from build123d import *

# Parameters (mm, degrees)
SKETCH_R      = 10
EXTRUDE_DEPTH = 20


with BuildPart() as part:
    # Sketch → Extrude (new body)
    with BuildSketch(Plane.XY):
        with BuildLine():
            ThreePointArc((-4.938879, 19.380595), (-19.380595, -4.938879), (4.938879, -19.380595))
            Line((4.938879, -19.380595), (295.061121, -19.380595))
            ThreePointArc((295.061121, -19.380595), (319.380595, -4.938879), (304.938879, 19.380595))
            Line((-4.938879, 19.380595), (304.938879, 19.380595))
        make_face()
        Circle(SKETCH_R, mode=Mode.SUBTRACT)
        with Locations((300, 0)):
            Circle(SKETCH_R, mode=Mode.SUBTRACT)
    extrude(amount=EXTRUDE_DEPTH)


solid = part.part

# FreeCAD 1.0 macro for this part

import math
import FreeCAD as App
import Part
import Sketcher

V = App.Vector

doc = App.newDocument("Part")
body = doc.addObject("PartDesign::Body", "Body")

sketch1 = body.newObject("Sketcher::SketchObject", "Sketch")
sketch1.AttachmentSupport = (doc.getObject("XY_Plane"), [""])
sketch1.MapMode = "FlatFace"
sketch1.addGeometry(Part.ArcOfCircle(Part.Circle(V(0, 0, 0), V(0, 0, 1), 20), math.radians(104), math.radians(284)), False)
sketch1.addGeometry(Part.LineSegment(V(5, -19, 0), V(295, -19, 0)), False)
sketch1.addGeometry(Part.ArcOfCircle(Part.Circle(V(300, 0, 0), V(0, 0, 1), 20), math.radians(-104), math.radians(76)), False)
sketch1.addGeometry(Part.LineSegment(V(305, 19, 0), V(-5, 19, 0)), False)
sketch1.addGeometry(Part.Circle(V(0, 0, 0), V(0, 0, 1), 10), False)
sketch1.addGeometry(Part.Circle(V(300, 0, 0), V(0, 0, 1), 10), False)
sketch1.addConstraint(Sketcher.Constraint("Coincident", 0, 2, 1, 1))
sketch1.addConstraint(Sketcher.Constraint("Coincident", 1, 2, 2, 1))
sketch1.addConstraint(Sketcher.Constraint("Coincident", 2, 2, 3, 1))
sketch1.addConstraint(Sketcher.Constraint("Coincident", 3, 2, 0, 1))
sketch1.addConstraint(Sketcher.Constraint("Horizontal", 1))
sketch1.addConstraint(Sketcher.Constraint("Horizontal", 3))
sketch1.addConstraint(Sketcher.Constraint("Coincident", 0, 3, -1, 1))
sketch1.addConstraint(Sketcher.Constraint("Coincident", 4, 3, -1, 1))
sketch1.addConstraint(Sketcher.Constraint("Coincident", 5, 3, 2, 3))
sketch1.addConstraint(Sketcher.Constraint("Equal", 0, 2))
sketch1.addConstraint(Sketcher.Constraint("Equal", 4, 5))
sketch1.addConstraint(Sketcher.Constraint("PointOnObject", 2, 3, -1))
sketch1.addConstraint(Sketcher.Constraint("Diameter", 4, 20.0))
sketch1.addConstraint(Sketcher.Constraint("Radius", 0, 20.0))
sketch1.addConstraint(Sketcher.Constraint("DistanceX", -1, 1, 2, 3, 300.0))
sketch1.addConstraint(Sketcher.Constraint("DistanceX", 0, 2, 2, 2, 300.0))
sketch1.addConstraint(Sketcher.Constraint("DistanceX", 1, 1, 1, 2, 290.122242))
pad1 = body.newObject("PartDesign::Pad", "Pad")
pad1.Profile = sketch1
pad1.Length = 20

doc.recompute()
